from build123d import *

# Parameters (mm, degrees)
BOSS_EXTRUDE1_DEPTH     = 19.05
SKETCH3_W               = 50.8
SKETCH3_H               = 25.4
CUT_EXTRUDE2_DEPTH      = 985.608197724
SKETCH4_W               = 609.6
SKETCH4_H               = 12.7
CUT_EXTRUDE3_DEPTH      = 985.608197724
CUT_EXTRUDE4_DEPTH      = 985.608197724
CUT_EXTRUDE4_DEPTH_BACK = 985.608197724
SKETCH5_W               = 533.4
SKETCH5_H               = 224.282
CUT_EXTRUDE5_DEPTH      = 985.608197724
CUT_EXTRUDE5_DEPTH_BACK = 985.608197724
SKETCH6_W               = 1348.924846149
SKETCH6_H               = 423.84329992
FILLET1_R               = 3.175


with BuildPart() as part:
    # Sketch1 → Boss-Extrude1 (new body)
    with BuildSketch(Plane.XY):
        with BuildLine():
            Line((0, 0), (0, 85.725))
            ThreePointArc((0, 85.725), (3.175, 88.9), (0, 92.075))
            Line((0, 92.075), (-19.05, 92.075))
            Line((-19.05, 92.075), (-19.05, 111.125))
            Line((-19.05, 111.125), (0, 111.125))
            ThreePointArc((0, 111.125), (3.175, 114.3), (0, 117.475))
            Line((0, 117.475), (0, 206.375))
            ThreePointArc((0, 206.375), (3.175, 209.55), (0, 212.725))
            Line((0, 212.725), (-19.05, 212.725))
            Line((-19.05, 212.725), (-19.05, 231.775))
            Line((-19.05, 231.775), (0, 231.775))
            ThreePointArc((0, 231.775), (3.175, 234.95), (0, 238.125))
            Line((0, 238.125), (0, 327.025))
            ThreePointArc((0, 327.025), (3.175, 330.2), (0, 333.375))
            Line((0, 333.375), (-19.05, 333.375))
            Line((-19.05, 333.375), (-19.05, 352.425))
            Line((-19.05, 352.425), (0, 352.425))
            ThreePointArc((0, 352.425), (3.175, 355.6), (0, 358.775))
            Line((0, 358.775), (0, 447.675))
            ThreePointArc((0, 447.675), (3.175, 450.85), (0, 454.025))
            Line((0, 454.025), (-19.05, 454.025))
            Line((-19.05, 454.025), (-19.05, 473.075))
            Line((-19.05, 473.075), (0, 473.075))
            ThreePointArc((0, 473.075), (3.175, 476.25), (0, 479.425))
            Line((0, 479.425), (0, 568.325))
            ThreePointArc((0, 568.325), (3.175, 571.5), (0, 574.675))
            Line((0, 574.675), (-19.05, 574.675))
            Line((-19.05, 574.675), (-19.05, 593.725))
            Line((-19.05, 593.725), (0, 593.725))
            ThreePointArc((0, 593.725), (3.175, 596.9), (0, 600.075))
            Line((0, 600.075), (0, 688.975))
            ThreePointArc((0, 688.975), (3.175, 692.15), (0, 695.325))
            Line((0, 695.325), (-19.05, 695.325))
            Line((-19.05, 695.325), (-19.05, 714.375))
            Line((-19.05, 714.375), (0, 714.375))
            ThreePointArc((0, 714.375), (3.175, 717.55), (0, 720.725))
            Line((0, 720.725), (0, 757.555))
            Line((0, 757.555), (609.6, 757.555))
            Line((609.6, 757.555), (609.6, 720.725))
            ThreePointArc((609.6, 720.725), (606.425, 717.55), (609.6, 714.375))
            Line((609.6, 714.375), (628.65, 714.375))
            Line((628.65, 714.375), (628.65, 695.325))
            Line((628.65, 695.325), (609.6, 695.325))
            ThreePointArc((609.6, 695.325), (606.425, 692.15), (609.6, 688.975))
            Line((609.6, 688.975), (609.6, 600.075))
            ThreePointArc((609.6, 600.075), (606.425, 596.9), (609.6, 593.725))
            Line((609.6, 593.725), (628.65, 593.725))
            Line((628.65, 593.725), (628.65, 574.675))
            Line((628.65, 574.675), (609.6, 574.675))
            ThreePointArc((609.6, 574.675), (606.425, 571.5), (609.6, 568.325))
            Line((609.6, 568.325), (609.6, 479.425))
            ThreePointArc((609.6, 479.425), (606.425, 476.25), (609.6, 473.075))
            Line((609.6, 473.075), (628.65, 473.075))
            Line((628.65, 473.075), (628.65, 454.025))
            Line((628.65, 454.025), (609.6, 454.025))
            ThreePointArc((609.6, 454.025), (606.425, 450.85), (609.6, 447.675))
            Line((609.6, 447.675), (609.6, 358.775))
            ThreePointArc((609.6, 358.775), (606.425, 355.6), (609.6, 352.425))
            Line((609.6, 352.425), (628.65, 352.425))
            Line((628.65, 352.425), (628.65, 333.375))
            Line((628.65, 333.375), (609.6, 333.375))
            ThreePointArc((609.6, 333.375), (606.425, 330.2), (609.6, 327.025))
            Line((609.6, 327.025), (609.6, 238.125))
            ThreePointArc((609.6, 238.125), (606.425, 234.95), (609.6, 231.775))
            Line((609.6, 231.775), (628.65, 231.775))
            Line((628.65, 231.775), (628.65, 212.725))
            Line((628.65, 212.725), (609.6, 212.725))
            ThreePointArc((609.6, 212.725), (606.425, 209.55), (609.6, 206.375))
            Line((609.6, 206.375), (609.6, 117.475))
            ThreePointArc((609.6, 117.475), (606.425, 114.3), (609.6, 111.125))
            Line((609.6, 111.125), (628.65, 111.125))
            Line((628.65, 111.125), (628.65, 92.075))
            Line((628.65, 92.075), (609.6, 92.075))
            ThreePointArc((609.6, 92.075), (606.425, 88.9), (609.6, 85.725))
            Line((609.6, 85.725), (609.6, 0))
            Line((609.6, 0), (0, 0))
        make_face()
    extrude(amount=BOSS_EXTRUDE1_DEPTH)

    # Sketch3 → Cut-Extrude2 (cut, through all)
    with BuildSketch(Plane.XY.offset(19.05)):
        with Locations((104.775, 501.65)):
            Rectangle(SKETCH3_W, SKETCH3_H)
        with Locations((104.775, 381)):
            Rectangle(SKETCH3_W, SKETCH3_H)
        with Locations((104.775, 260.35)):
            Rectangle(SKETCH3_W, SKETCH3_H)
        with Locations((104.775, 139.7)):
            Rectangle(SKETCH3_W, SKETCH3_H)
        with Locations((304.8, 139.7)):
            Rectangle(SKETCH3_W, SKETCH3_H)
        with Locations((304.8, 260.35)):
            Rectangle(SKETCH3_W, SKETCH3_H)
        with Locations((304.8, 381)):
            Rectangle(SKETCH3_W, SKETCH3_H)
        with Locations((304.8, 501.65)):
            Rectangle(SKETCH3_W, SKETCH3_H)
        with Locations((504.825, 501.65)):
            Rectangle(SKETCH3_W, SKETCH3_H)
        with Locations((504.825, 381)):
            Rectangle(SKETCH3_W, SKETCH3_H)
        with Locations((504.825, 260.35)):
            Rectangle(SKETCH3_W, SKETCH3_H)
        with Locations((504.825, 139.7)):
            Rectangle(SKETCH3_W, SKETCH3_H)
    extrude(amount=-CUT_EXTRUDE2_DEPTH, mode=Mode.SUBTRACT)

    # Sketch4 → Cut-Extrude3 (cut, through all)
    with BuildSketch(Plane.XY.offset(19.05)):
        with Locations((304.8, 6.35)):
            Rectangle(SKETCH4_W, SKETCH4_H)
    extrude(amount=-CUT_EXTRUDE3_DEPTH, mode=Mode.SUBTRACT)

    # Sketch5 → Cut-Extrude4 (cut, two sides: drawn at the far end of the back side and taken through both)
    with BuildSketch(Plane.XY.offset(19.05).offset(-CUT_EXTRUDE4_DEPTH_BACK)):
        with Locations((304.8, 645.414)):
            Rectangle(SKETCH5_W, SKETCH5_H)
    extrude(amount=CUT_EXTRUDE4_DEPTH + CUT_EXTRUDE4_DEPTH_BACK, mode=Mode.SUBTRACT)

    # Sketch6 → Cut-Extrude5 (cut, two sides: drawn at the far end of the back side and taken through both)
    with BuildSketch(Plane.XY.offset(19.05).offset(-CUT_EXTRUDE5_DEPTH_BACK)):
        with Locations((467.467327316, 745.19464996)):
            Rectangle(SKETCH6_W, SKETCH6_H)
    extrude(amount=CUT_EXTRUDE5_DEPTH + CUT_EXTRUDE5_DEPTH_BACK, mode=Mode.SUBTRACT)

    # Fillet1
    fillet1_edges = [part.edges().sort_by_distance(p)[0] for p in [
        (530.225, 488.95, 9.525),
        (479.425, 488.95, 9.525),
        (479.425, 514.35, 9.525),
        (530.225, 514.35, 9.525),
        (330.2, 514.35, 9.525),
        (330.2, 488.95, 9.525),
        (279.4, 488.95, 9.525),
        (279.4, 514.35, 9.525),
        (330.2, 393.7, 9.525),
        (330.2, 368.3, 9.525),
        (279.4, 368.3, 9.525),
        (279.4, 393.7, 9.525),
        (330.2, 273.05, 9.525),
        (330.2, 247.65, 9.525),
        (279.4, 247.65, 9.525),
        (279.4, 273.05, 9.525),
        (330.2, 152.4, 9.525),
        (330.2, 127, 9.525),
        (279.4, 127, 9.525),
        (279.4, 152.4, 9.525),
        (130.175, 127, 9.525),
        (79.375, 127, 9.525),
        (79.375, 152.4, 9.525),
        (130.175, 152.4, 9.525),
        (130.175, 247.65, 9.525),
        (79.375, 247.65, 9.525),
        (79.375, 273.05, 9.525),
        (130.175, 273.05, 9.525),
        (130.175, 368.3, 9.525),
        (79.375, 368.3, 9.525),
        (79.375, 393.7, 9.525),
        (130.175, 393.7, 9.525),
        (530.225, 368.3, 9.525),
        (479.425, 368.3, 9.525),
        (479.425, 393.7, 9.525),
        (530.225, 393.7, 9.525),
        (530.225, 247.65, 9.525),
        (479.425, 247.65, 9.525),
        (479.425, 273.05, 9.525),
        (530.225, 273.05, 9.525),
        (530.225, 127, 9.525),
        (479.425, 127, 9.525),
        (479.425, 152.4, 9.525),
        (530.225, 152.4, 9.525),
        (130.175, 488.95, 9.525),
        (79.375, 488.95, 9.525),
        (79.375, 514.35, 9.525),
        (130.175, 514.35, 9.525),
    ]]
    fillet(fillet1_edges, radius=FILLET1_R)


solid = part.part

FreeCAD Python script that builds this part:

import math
import FreeCAD as App
import Part
import Sketcher

V = App.Vector
Q = App.Units.Quantity


def edges_at(feature, points):
    """Names of the edges that pass closest to the given points."""
    edges = feature.Shape.Edges
    near = lambda p: min(range(len(edges)), key=lambda i: edges[i].distToShape(Part.Vertex(*p))[0])
    return sorted({f"Edge{near(p) + 1}" for p in points})

doc = App.newDocument("Part")
params = doc.addObject("Spreadsheet::Sheet", "Params")
for row, (alias, value) in enumerate([
    ("sketch1_width", "24 in"),
    ("sketch1_height", "3.5 in"),
    ("sketch1_radius", "0.125 in"),
    ("sketch1_height2", "1.45 in"),
    ("pad1_length", "0.75 in"),
    ("sketch2_width", "2 in"),
    ("sketch2_height", "1 in"),
    ("sketch3_width", "24 in"),
    ("sketch3_height", "0.5 in"),
    ("sketch4_width", "21 in"),
    ("sketch4_height", "8.83 in"),
    ("fillet_radius", "0.125 in"),
], start=1):
    params.set(f"A{row}", alias)
    params.set(f"B{row}", "=" + value)
    params.setAlias(f"B{row}", alias)

body = doc.addObject("PartDesign::Body", "Body")

sketch1 = body.newObject("Sketcher::SketchObject", "Sketch")
sketch1.AttachmentSupport = (doc.getObject("XY_Plane"), [""])
sketch1.MapMode = "FlatFace"
sketch1.addGeometry(Part.LineSegment(V(0, 85.7, 0), V(0, 0, 0)), False)
sketch1.addGeometry(Part.LineSegment(V(0, 0, 0), V(609.6, 0, 0)), False)
sketch1.addGeometry(Part.LineSegment(V(609.6, 0, 0), V(609.6, 85.7, 0)), False)
sketch1.addGeometry(Part.ArcOfCircle(Part.Circle(V(609.6, 88.9, 0), V(0, 0, 1), 3.2), math.radians(90), math.radians(270)), False)
sketch1.addGeometry(Part.LineSegment(V(609.6, 92.1, 0), V(628.6, 92.1, 0)), False)
sketch1.addGeometry(Part.LineSegment(V(628.6, 92.1, 0), V(628.6, 111.1, 0)), False)
sketch1.addGeometry(Part.LineSegment(V(628.6, 111.1, 0), V(609.6, 111.1, 0)), False)
sketch1.addGeometry(Part.ArcOfCircle(Part.Circle(V(609.6, 114.3, 0), V(0, 0, 1), 3.2), math.radians(90), math.radians(270)), False)
sketch1.addGeometry(Part.LineSegment(V(609.6, 117.5, 0), V(609.6, 206.4, 0)), False)
sketch1.addGeometry(Part.ArcOfCircle(Part.Circle(V(609.6, 209.6, 0), V(0, 0, 1), 3.2), math.radians(90), math.radians(270)), False)
sketch1.addGeometry(Part.LineSegment(V(609.6, 212.7, 0), V(628.6, 212.7, 0)), False)
sketch1.addGeometry(Part.LineSegment(V(628.6, 212.7, 0), V(628.6, 231.8, 0)), False)
sketch1.addGeometry(Part.LineSegment(V(628.6, 231.8, 0), V(609.6, 231.8, 0)), False)
sketch1.addGeometry(Part.ArcOfCircle(Part.Circle(V(609.6, 234.9, 0), V(0, 0, 1), 3.2), math.radians(90), math.radians(270)), False)
sketch1.addGeometry(Part.LineSegment(V(609.6, 238.1, 0), V(609.6, 327, 0)), False)
sketch1.addGeometry(Part.ArcOfCircle(Part.Circle(V(609.6, 330.2, 0), V(0, 0, 1), 3.2), math.radians(90), math.radians(270)), False)
sketch1.addGeometry(Part.LineSegment(V(609.6, 333.4, 0), V(628.6, 333.4, 0)), False)
sketch1.addGeometry(Part.LineSegment(V(628.6, 333.4, 0), V(628.6, 352.4, 0)), False)
sketch1.addGeometry(Part.LineSegment(V(628.6, 352.4, 0), V(609.6, 352.4, 0)), False)
sketch1.addGeometry(Part.ArcOfCircle(Part.Circle(V(609.6, 355.6, 0), V(0, 0, 1), 3.2), math.radians(90), math.radians(270)), False)
sketch1.addGeometry(Part.LineSegment(V(609.6, 358.8, 0), V(609.6, 447.7, 0)), False)
sketch1.addGeometry(Part.ArcOfCircle(Part.Circle(V(609.6, 450.9, 0), V(0, 0, 1), 3.2), math.radians(90), math.radians(270)), False)
sketch1.addGeometry(Part.LineSegment(V(609.6, 454, 0), V(628.6, 454, 0)), False)
sketch1.addGeometry(Part.LineSegment(V(628.6, 454, 0), V(628.6, 473.1, 0)), False)
sketch1.addGeometry(Part.LineSegment(V(628.6, 473.1, 0), V(609.6, 473.1, 0)), False)
sketch1.addGeometry(Part.ArcOfCircle(Part.Circle(V(609.6, 476.2, 0), V(0, 0, 1), 3.2), math.radians(90), math.radians(270)), False)
sketch1.addGeometry(Part.LineSegment(V(609.6, 479.4, 0), V(609.6, 568.3, 0)), False)
sketch1.addGeometry(Part.ArcOfCircle(Part.Circle(V(609.6, 571.5, 0), V(0, 0, 1), 3.2), math.radians(90), math.radians(270)), False)
sketch1.addGeometry(Part.LineSegment(V(609.6, 574.7, 0), V(628.6, 574.7, 0)), False)
sketch1.addGeometry(Part.LineSegment(V(628.6, 574.7, 0), V(628.6, 593.7, 0)), False)
sketch1.addGeometry(Part.LineSegment(V(628.6, 593.7, 0), V(609.6, 593.7, 0)), False)
sketch1.addGeometry(Part.ArcOfCircle(Part.Circle(V(609.6, 596.9, 0), V(0, 0, 1), 3.2), math.radians(90), math.radians(270)), False)
sketch1.addGeometry(Part.LineSegment(V(609.6, 600.1, 0), V(609.6, 689, 0)), False)
sketch1.addGeometry(Part.ArcOfCircle(Part.Circle(V(609.6, 692.1, 0), V(0, 0, 1), 3.2), math.radians(90), math.radians(270)), False)
sketch1.addGeometry(Part.LineSegment(V(609.6, 695.3, 0), V(628.6, 695.3, 0)), False)
sketch1.addGeometry(Part.LineSegment(V(628.6, 695.3, 0), V(628.6, 714.4, 0)), False)
sketch1.addGeometry(Part.LineSegment(V(628.6, 714.4, 0), V(609.6, 714.4, 0)), False)
sketch1.addGeometry(Part.ArcOfCircle(Part.Circle(V(609.6, 717.5, 0), V(0, 0, 1), 3.2), math.radians(90), math.radians(270)), False)
sketch1.addGeometry(Part.LineSegment(V(609.6, 720.7, 0), V(609.6, 757.6, 0)), False)
sketch1.addGeometry(Part.LineSegment(V(609.6, 757.6, 0), V(0, 757.6, 0)), False)
sketch1.addGeometry(Part.LineSegment(V(0, 757.6, 0), V(0, 720.7, 0)), False)
sketch1.addGeometry(Part.ArcOfCircle(Part.Circle(V(0, 717.5, 0), V(0, 0, 1), 3.2), math.radians(-90), math.radians(90)), False)
sketch1.addGeometry(Part.LineSegment(V(0, 714.4, 0), V(-19.1, 714.4, 0)), False)
sketch1.addGeometry(Part.LineSegment(V(-19.1, 714.4, 0), V(-19.1, 695.3, 0)), False)
sketch1.addGeometry(Part.LineSegment(V(-19.1, 695.3, 0), V(0, 695.3, 0)), False)
sketch1.addGeometry(Part.ArcOfCircle(Part.Circle(V(0, 692.1, 0), V(0, 0, 1), 3.2), math.radians(-90), math.radians(90)), False)
sketch1.addGeometry(Part.LineSegment(V(0, 689, 0), V(0, 600.1, 0)), False)
sketch1.addGeometry(Part.ArcOfCircle(Part.Circle(V(0, 596.9, 0), V(0, 0, 1), 3.2), math.radians(-90), math.radians(90)), False)
sketch1.addGeometry(Part.LineSegment(V(0, 593.7, 0), V(-19.1, 593.7, 0)), False)
sketch1.addGeometry(Part.LineSegment(V(-19.1, 593.7, 0), V(-19.1, 574.7, 0)), False)
sketch1.addGeometry(Part.LineSegment(V(-19.1, 574.7, 0), V(0, 574.7, 0)), False)
sketch1.addGeometry(Part.ArcOfCircle(Part.Circle(V(0, 571.5, 0), V(0, 0, 1), 3.2), math.radians(-90), math.radians(90)), False)
sketch1.addGeometry(Part.LineSegment(V(0, 568.3, 0), V(0, 479.4, 0)), False)
sketch1.addGeometry(Part.ArcOfCircle(Part.Circle(V(0, 476.2, 0), V(0, 0, 1), 3.2), math.radians(-90), math.radians(90)), False)
sketch1.addGeometry(Part.LineSegment(V(0, 473.1, 0), V(-19.1, 473.1, 0)), False)
sketch1.addGeometry(Part.LineSegment(V(-19.1, 473.1, 0), V(-19.1, 454, 0)), False)
sketch1.addGeometry(Part.LineSegment(V(-19.1, 454, 0), V(0, 454, 0)), False)
sketch1.addGeometry(Part.ArcOfCircle(Part.Circle(V(0, 450.9, 0), V(0, 0, 1), 3.2), math.radians(-90), math.radians(90)), False)
sketch1.addGeometry(Part.LineSegment(V(0, 447.7, 0), V(0, 358.8, 0)), False)
sketch1.addGeometry(Part.ArcOfCircle(Part.Circle(V(0, 355.6, 0), V(0, 0, 1), 3.2), math.radians(-90), math.radians(90)), False)
sketch1.addGeometry(Part.LineSegment(V(0, 352.4, 0), V(-19.1, 352.4, 0)), False)
sketch1.addGeometry(Part.LineSegment(V(-19.1, 352.4, 0), V(-19.1, 333.4, 0)), False)
sketch1.addGeometry(Part.LineSegment(V(-19.1, 333.4, 0), V(0, 333.4, 0)), False)
sketch1.addGeometry(Part.ArcOfCircle(Part.Circle(V(0, 330.2, 0), V(0, 0, 1), 3.2), math.radians(-90), math.radians(90)), False)
sketch1.addGeometry(Part.LineSegment(V(0, 327, 0), V(0, 238.1, 0)), False)
sketch1.addGeometry(Part.ArcOfCircle(Part.Circle(V(0, 234.9, 0), V(0, 0, 1), 3.2), math.radians(-90), math.radians(90)), False)
sketch1.addGeometry(Part.LineSegment(V(0, 231.8, 0), V(-19.1, 231.8, 0)), False)
sketch1.addGeometry(Part.LineSegment(V(-19.1, 231.8, 0), V(-19.1, 212.7, 0)), False)
sketch1.addGeometry(Part.LineSegment(V(-19.1, 212.7, 0), V(0, 212.7, 0)), False)
sketch1.addGeometry(Part.ArcOfCircle(Part.Circle(V(0, 209.6, 0), V(0, 0, 1), 3.2), math.radians(-90), math.radians(90)), False)
sketch1.addGeometry(Part.LineSegment(V(0, 206.4, 0), V(0, 117.5, 0)), False)
sketch1.addGeometry(Part.ArcOfCircle(Part.Circle(V(0, 114.3, 0), V(0, 0, 1), 3.2), math.radians(-90), math.radians(90)), False)
sketch1.addGeometry(Part.LineSegment(V(0, 111.1, 0), V(-19.1, 111.1, 0)), False)
sketch1.addGeometry(Part.LineSegment(V(-19.1, 111.1, 0), V(-19.1, 92.1, 0)), False)
sketch1.addGeometry(Part.LineSegment(V(-19.1, 92.1, 0), V(0, 92.1, 0)), False)
sketch1.addGeometry(Part.ArcOfCircle(Part.Circle(V(0, 88.9, 0), V(0, 0, 1), 3.2), math.radians(-90), math.radians(90)), False)
sketch1.addConstraint(Sketcher.Constraint("Coincident", 0, 2, 1, 1))
sketch1.addConstraint(Sketcher.Constraint("Coincident", 1, 2, 2, 1))
sketch1.addConstraint(Sketcher.Constraint("Coincident", 2, 2, 3, 2))
sketch1.addConstraint(Sketcher.Constraint("Tangent", 3, 1, 4, 1))
sketch1.addConstraint(Sketcher.Constraint("Coincident", 4, 2, 5, 1))
sketch1.addConstraint(Sketcher.Constraint("Coincident", 5, 2, 6, 1))
sketch1.addConstraint(Sketcher.Constraint("Tangent", 6, 2, 7, 2))
sketch1.addConstraint(Sketcher.Constraint("Coincident", 7, 1, 8, 1))
sketch1.addConstraint(Sketcher.Constraint("Coincident", 8, 2, 9, 2))
sketch1.addConstraint(Sketcher.Constraint("Tangent", 9, 1, 10, 1))
sketch1.addConstraint(Sketcher.Constraint("Coincident", 10, 2, 11, 1))
sketch1.addConstraint(Sketcher.Constraint("Coincident", 11, 2, 12, 1))
sketch1.addConstraint(Sketcher.Constraint("Tangent", 12, 2, 13, 2))
sketch1.addConstraint(Sketcher.Constraint("Coincident", 13, 1, 14, 1))
sketch1.addConstraint(Sketcher.Constraint("Coincident", 14, 2, 15, 2))
sketch1.addConstraint(Sketcher.Constraint("Tangent", 15, 1, 16, 1))
sketch1.addConstraint(Sketcher.Constraint("Coincident", 16, 2, 17, 1))
sketch1.addConstraint(Sketcher.Constraint("Coincident", 17, 2, 18, 1))
sketch1.addConstraint(Sketcher.Constraint("Tangent", 18, 2, 19, 2))
sketch1.addConstraint(Sketcher.Constraint("Coincident", 19, 1, 20, 1))
sketch1.addConstraint(Sketcher.Constraint("Coincident", 20, 2, 21, 2))
sketch1.addConstraint(Sketcher.Constraint("Tangent", 21, 1, 22, 1))
sketch1.addConstraint(Sketcher.Constraint("Coincident", 22, 2, 23, 1))
sketch1.addConstraint(Sketcher.Constraint("Coincident", 23, 2, 24, 1))
sketch1.addConstraint(Sketcher.Constraint("Tangent", 24, 2, 25, 2))
sketch1.addConstraint(Sketcher.Constraint("Coincident", 25, 1, 26, 1))
sketch1.addConstraint(Sketcher.Constraint("Coincident", 26, 2, 27, 2))
sketch1.addConstraint(Sketcher.Constraint("Tangent", 27, 1, 28, 1))
sketch1.addConstraint(Sketcher.Constraint("Coincident", 28, 2, 29, 1))
sketch1.addConstraint(Sketcher.Constraint("Coincident", 29, 2, 30, 1))
sketch1.addConstraint(Sketcher.Constraint("Tangent", 30, 2, 31, 2))
sketch1.addConstraint(Sketcher.Constraint("Coincident", 31, 1, 32, 1))
sketch1.addConstraint(Sketcher.Constraint("Coincident", 32, 2, 33, 2))
sketch1.addConstraint(Sketcher.Constraint("Tangent", 33, 1, 34, 1))
sketch1.addConstraint(Sketcher.Constraint("Coincident", 34, 2, 35, 1))
sketch1.addConstraint(Sketcher.Constraint("Coincident", 35, 2, 36, 1))
sketch1.addConstraint(Sketcher.Constraint("Tangent", 36, 2, 37, 2))
sketch1.addConstraint(Sketcher.Constraint("Coincident", 37, 1, 38, 1))
sketch1.addConstraint(Sketcher.Constraint("Coincident", 38, 2, 39, 1))
sketch1.addConstraint(Sketcher.Constraint("Coincident", 39, 2, 40, 1))
sketch1.addConstraint(Sketcher.Constraint("Coincident", 40, 2, 41, 2))
sketch1.addConstraint(Sketcher.Constraint("Tangent", 41, 1, 42, 1))
sketch1.addConstraint(Sketcher.Constraint("Coincident", 42, 2, 43, 1))
sketch1.addConstraint(Sketcher.Constraint("Coincident", 43, 2, 44, 1))
sketch1.addConstraint(Sketcher.Constraint("Tangent", 44, 2, 45, 2))
sketch1.addConstraint(Sketcher.Constraint("Coincident", 45, 1, 46, 1))
sketch1.addConstraint(Sketcher.Constraint("Coincident", 46, 2, 47, 2))
sketch1.addConstraint(Sketcher.Constraint("Tangent", 47, 1, 48, 1))
sketch1.addConstraint(Sketcher.Constraint("Coincident", 48, 2, 49, 1))
sketch1.addConstraint(Sketcher.Constraint("Coincident", 49, 2, 50, 1))
sketch1.addConstraint(Sketcher.Constraint("Tangent", 50, 2, 51, 2))
sketch1.addConstraint(Sketcher.Constraint("Coincident", 51, 1, 52, 1))
sketch1.addConstraint(Sketcher.Constraint("Coincident", 52, 2, 53, 2))
sketch1.addConstraint(Sketcher.Constraint("Tangent", 53, 1, 54, 1))
sketch1.addConstraint(Sketcher.Constraint("Coincident", 54, 2, 55, 1))
sketch1.addConstraint(Sketcher.Constraint("Coincident", 55, 2, 56, 1))
sketch1.addConstraint(Sketcher.Constraint("Tangent", 56, 2, 57, 2))
sketch1.addConstraint(Sketcher.Constraint("Coincident", 57, 1, 58, 1))
sketch1.addConstraint(Sketcher.Constraint("Coincident", 58, 2, 59, 2))
sketch1.addConstraint(Sketcher.Constraint("Tangent", 59, 1, 60, 1))
sketch1.addConstraint(Sketcher.Constraint("Coincident", 60, 2, 61, 1))
sketch1.addConstraint(Sketcher.Constraint("Coincident", 61, 2, 62, 1))
sketch1.addConstraint(Sketcher.Constraint("Tangent", 62, 2, 63, 2))
sketch1.addConstraint(Sketcher.Constraint("Coincident", 63, 1, 64, 1))
sketch1.addConstraint(Sketcher.Constraint("Coincident", 64, 2, 65, 2))
sketch1.addConstraint(Sketcher.Constraint("Tangent", 65, 1, 66, 1))
sketch1.addConstraint(Sketcher.Constraint("Coincident", 66, 2, 67, 1))
sketch1.addConstraint(Sketcher.Constraint("Coincident", 67, 2, 68, 1))
sketch1.addConstraint(Sketcher.Constraint("Tangent", 68, 2, 69, 2))
sketch1.addConstraint(Sketcher.Constraint("Coincident", 69, 1, 70, 1))
sketch1.addConstraint(Sketcher.Constraint("Coincident", 70, 2, 71, 2))
sketch1.addConstraint(Sketcher.Constraint("Tangent", 71, 1, 72, 1))
sketch1.addConstraint(Sketcher.Constraint("Coincident", 72, 2, 73, 1))
sketch1.addConstraint(Sketcher.Constraint("Coincident", 73, 2, 74, 1))
sketch1.addConstraint(Sketcher.Constraint("Tangent", 74, 2, 75, 2))
sketch1.addConstraint(Sketcher.Constraint("Coincident", 75, 1, 0, 1))
sketch1.addConstraint(Sketcher.Constraint("Vertical", 0))
sketch1.addConstraint(Sketcher.Constraint("Horizontal", 1))
sketch1.addConstraint(Sketcher.Constraint("Vertical", 2))
sketch1.addConstraint(Sketcher.Constraint("Horizontal", 4))
sketch1.addConstraint(Sketcher.Constraint("Vertical", 5))
sketch1.addConstraint(Sketcher.Constraint("Horizontal", 6))
sketch1.addConstraint(Sketcher.Constraint("Vertical", 8))
sketch1.addConstraint(Sketcher.Constraint("Horizontal", 10))
sketch1.addConstraint(Sketcher.Constraint("Vertical", 11))
sketch1.addConstraint(Sketcher.Constraint("Horizontal", 12))
sketch1.addConstraint(Sketcher.Constraint("Vertical", 14))
sketch1.addConstraint(Sketcher.Constraint("Horizontal", 16))
sketch1.addConstraint(Sketcher.Constraint("Vertical", 17))
sketch1.addConstraint(Sketcher.Constraint("Horizontal", 18))
sketch1.addConstraint(Sketcher.Constraint("Vertical", 20))
sketch1.addConstraint(Sketcher.Constraint("Horizontal", 22))
sketch1.addConstraint(Sketcher.Constraint("Vertical", 23))
sketch1.addConstraint(Sketcher.Constraint("Horizontal", 24))
sketch1.addConstraint(Sketcher.Constraint("Vertical", 26))
sketch1.addConstraint(Sketcher.Constraint("Horizontal", 28))
sketch1.addConstraint(Sketcher.Constraint("Vertical", 29))
sketch1.addConstraint(Sketcher.Constraint("Horizontal", 30))
sketch1.addConstraint(Sketcher.Constraint("Vertical", 32))
sketch1.addConstraint(Sketcher.Constraint("Horizontal", 34))
sketch1.addConstraint(Sketcher.Constraint("Vertical", 35))
sketch1.addConstraint(Sketcher.Constraint("Horizontal", 36))
sketch1.addConstraint(Sketcher.Constraint("Vertical", 38))
sketch1.addConstraint(Sketcher.Constraint("Horizontal", 39))
sketch1.addConstraint(Sketcher.Constraint("Vertical", 40))
sketch1.addConstraint(Sketcher.Constraint("Horizontal", 42))
sketch1.addConstraint(Sketcher.Constraint("Vertical", 43))
sketch1.addConstraint(Sketcher.Constraint("Horizontal", 44))
sketch1.addConstraint(Sketcher.Constraint("Vertical", 46))
sketch1.addConstraint(Sketcher.Constraint("Horizontal", 48))
sketch1.addConstraint(Sketcher.Constraint("Vertical", 49))
sketch1.addConstraint(Sketcher.Constraint("Horizontal", 50))
sketch1.addConstraint(Sketcher.Constraint("Vertical", 52))
sketch1.addConstraint(Sketcher.Constraint("Horizontal", 54))
sketch1.addConstraint(Sketcher.Constraint("Vertical", 55))
sketch1.addConstraint(Sketcher.Constraint("Horizontal", 56))
sketch1.addConstraint(Sketcher.Constraint("Vertical", 58))
sketch1.addConstraint(Sketcher.Constraint("Horizontal", 60))
sketch1.addConstraint(Sketcher.Constraint("Vertical", 61))
sketch1.addConstraint(Sketcher.Constraint("Horizontal", 62))
sketch1.addConstraint(Sketcher.Constraint("Vertical", 64))
sketch1.addConstraint(Sketcher.Constraint("Horizontal", 66))
sketch1.addConstraint(Sketcher.Constraint("Vertical", 67))
sketch1.addConstraint(Sketcher.Constraint("Horizontal", 68))
sketch1.addConstraint(Sketcher.Constraint("Vertical", 70))
sketch1.addConstraint(Sketcher.Constraint("Horizontal", 72))
sketch1.addConstraint(Sketcher.Constraint("Vertical", 73))
sketch1.addConstraint(Sketcher.Constraint("Horizontal", 74))
sketch1.addConstraint(Sketcher.Constraint("Coincident", 0, 2, -1, 1))
sketch1.addConstraint(Sketcher.Constraint("Equal", 3, 7))
sketch1.addConstraint(Sketcher.Constraint("Equal", 7, 9))
sketch1.addConstraint(Sketcher.Constraint("Equal", 9, 13))
sketch1.addConstraint(Sketcher.Constraint("Equal", 13, 15))
sketch1.addConstraint(Sketcher.Constraint("Equal", 15, 19))
sketch1.addConstraint(Sketcher.Constraint("Equal", 19, 21))
sketch1.addConstraint(Sketcher.Constraint("Equal", 21, 25))
sketch1.addConstraint(Sketcher.Constraint("Equal", 25, 27))
sketch1.addConstraint(Sketcher.Constraint("Equal", 27, 31))
sketch1.addConstraint(Sketcher.Constraint("Equal", 31, 33))
sketch1.addConstraint(Sketcher.Constraint("Equal", 33, 37))
sketch1.addConstraint(Sketcher.Constraint("Equal", 37, 41))
sketch1.addConstraint(Sketcher.Constraint("Equal", 41, 45))
sketch1.addConstraint(Sketcher.Constraint("Equal", 45, 47))
sketch1.addConstraint(Sketcher.Constraint("Equal", 47, 51))
sketch1.addConstraint(Sketcher.Constraint("Equal", 51, 53))
sketch1.addConstraint(Sketcher.Constraint("Equal", 53, 57))
sketch1.addConstraint(Sketcher.Constraint("Equal", 57, 59))
sketch1.addConstraint(Sketcher.Constraint("Equal", 59, 63))
sketch1.addConstraint(Sketcher.Constraint("Equal", 63, 65))
sketch1.addConstraint(Sketcher.Constraint("Equal", 65, 69))
sketch1.addConstraint(Sketcher.Constraint("Equal", 69, 71))
sketch1.addConstraint(Sketcher.Constraint("Equal", 71, 75))
sketch1.addConstraint(Sketcher.Constraint("PointOnObject", 41, 3, -2))
sketch1.addConstraint(Sketcher.Constraint("PointOnObject", 45, 3, -2))
sketch1.addConstraint(Sketcher.Constraint("PointOnObject", 47, 3, -2))
sketch1.addConstraint(Sketcher.Constraint("PointOnObject", 51, 3, -2))
sketch1.addConstraint(Sketcher.Constraint("PointOnObject", 53, 3, -2))
sketch1.addConstraint(Sketcher.Constraint("PointOnObject", 57, 3, -2))
sketch1.addConstraint(Sketcher.Constraint("PointOnObject", 59, 3, -2))
sketch1.addConstraint(Sketcher.Constraint("PointOnObject", 63, 3, -2))
sketch1.addConstraint(Sketcher.Constraint("PointOnObject", 65, 3, -2))
sketch1.addConstraint(Sketcher.Constraint("PointOnObject", 69, 3, -2))
sketch1.addConstraint(Sketcher.Constraint("PointOnObject", 71, 3, -2))
sketch1.addConstraint(Sketcher.Constraint("PointOnObject", 75, 3, -2))
sketch1.addConstraint(Sketcher.Constraint("PointOnObject", 39, 2, -2))
sketch1.addConstraint(Sketcher.Constraint("PointOnObject", 45, 1, -2))
sketch1.addConstraint(Sketcher.Constraint("PointOnObject", 51, 1, -2))
sketch1.addConstraint(Sketcher.Constraint("PointOnObject", 57, 1, -2))
sketch1.addConstraint(Sketcher.Constraint("PointOnObject", 63, 1, -2))
sketch1.addConstraint(Sketcher.Constraint("PointOnObject", 69, 1, -2))
sketch1.addConstraint(Sketcher.Constraint("Horizontal", 37, 3, 41, 3))
sketch1.addConstraint(Sketcher.Constraint("Horizontal", 33, 3, 45, 3))
sketch1.addConstraint(Sketcher.Constraint("Horizontal", 31, 3, 47, 3))
sketch1.addConstraint(Sketcher.Constraint("Horizontal", 27, 3, 51, 3))
sketch1.addConstraint(Sketcher.Constraint("Horizontal", 25, 3, 53, 3))
sketch1.addConstraint(Sketcher.Constraint("Horizontal", 21, 3, 57, 3))
sketch1.addConstraint(Sketcher.Constraint("Horizontal", 19, 3, 59, 3))
sketch1.addConstraint(Sketcher.Constraint("Horizontal", 15, 3, 63, 3))
sketch1.addConstraint(Sketcher.Constraint("Horizontal", 13, 3, 65, 3))
sketch1.addConstraint(Sketcher.Constraint("Horizontal", 9, 3, 69, 3))
sketch1.addConstraint(Sketcher.Constraint("Horizontal", 7, 3, 71, 3))
sketch1.addConstraint(Sketcher.Constraint("Horizontal", 3, 3, 75, 3))
sketch1.addConstraint(Sketcher.Constraint("Vertical", 3, 3, 7, 3))
sketch1.addConstraint(Sketcher.Constraint("Vertical", 7, 3, 9, 3))
sketch1.addConstraint(Sketcher.Constraint("Vertical", 9, 3, 13, 3))
sketch1.addConstraint(Sketcher.Constraint("Vertical", 13, 3, 15, 3))
sketch1.addConstraint(Sketcher.Constraint("Vertical", 15, 3, 19, 3))
sketch1.addConstraint(Sketcher.Constraint("Vertical", 19, 3, 21, 3))
sketch1.addConstraint(Sketcher.Constraint("Vertical", 21, 3, 25, 3))
sketch1.addConstraint(Sketcher.Constraint("Vertical", 25, 3, 27, 3))
sketch1.addConstraint(Sketcher.Constraint("Vertical", 27, 3, 31, 3))
sketch1.addConstraint(Sketcher.Constraint("Vertical", 31, 3, 33, 3))
sketch1.addConstraint(Sketcher.Constraint("Vertical", 33, 3, 37, 3))
sketch1.addConstraint(Sketcher.Constraint("Vertical", 37, 3, 1, 2))
sketch1.addConstraint(Sketcher.Constraint("Vertical", 6, 2, 7, 1))
sketch1.addConstraint(Sketcher.Constraint("Vertical", 5, 2, 10, 2))
sketch1.addConstraint(Sketcher.Constraint("Vertical", 12, 2, 13, 1))
sketch1.addConstraint(Sketcher.Constraint("Vertical", 11, 2, 16, 2))
sketch1.addConstraint(Sketcher.Constraint("Vertical", 18, 2, 19, 1))
sketch1.addConstraint(Sketcher.Constraint("Vertical", 17, 2, 22, 2))
sketch1.addConstraint(Sketcher.Constraint("Vertical", 24, 2, 25, 1))
sketch1.addConstraint(Sketcher.Constraint("Vertical", 23, 2, 28, 2))
sketch1.addConstraint(Sketcher.Constraint("Vertical", 30, 2, 31, 1))
sketch1.addConstraint(Sketcher.Constraint("Vertical", 29, 2, 34, 2))
sketch1.addConstraint(Sketcher.Constraint("Vertical", 36, 2, 37, 1))
sketch1.addConstraint(Sketcher.Constraint("Vertical", 43, 2, 48, 2))
sketch1.addConstraint(Sketcher.Constraint("Vertical", 49, 2, 54, 2))
sketch1.addConstraint(Sketcher.Constraint("Vertical", 55, 2, 60, 2))
sketch1.addConstraint(Sketcher.Constraint("Vertical", 61, 2, 66, 2))
sketch1.addConstraint(Sketcher.Constraint("Vertical", 67, 2, 72, 2))
sketch1.addConstraint(Sketcher.Constraint("Equal", 36, 42))
sketch1.addConstraint(Sketcher.Constraint("Equal", 74, 5))
sketch1.addConstraint(Sketcher.Constraint("Equal", 5, 11))
sketch1.addConstraint(Sketcher.Constraint("Equal", 8, 14))
sketch1.addConstraint(Sketcher.Constraint("Equal", 11, 17))
sketch1.addConstraint(Sketcher.Constraint("Equal", 14, 20))
sketch1.addConstraint(Sketcher.Constraint("Equal", 17, 23))
sketch1.addConstraint(Sketcher.Constraint("Equal", 20, 26))
sketch1.addConstraint(Sketcher.Constraint("Equal", 23, 29))
sketch1.addConstraint(Sketcher.Constraint("Equal", 26, 32))
sketch1.addConstraint(Sketcher.Constraint("Equal", 29, 35))
sketch1.addConstraint(Sketcher.Constraint("DistanceX", 1, 1, 1, 2, Q("24 in")))
sketch1.addConstraint(Sketcher.Constraint("DistanceY", 8, 1, 8, 2, Q("3.5 in")))
sketch1.addConstraint(Sketcher.Constraint("DistanceY", -1, 1, 15, 3, Q("13 in")))
sketch1.addConstraint(Sketcher.Constraint("DistanceY", -1, 1, 19, 3, Q("14 in")))
sketch1.addConstraint(Sketcher.Constraint("Radius", 3, Q("0.125 in")))
sketch1.addConstraint(Sketcher.Constraint("DistanceY", 38, 1, 38, 2, Q("1.45 in")))
sketch1.setExpression("Constraints[221]", "Params.sketch1_width")
sketch1.setExpression("Constraints[222]", "Params.sketch1_height")
sketch1.setExpression("Constraints[225]", "Params.sketch1_radius")
sketch1.setExpression("Constraints[226]", "Params.sketch1_height2")
pad1 = body.newObject("PartDesign::Pad", "Pad")
pad1.Profile = sketch1
pad1.setExpression("Length", "Params.pad1_length")

sketch2 = body.newObject("Sketcher::SketchObject", "Sketch001")
sketch2.AttachmentSupport = (doc.getObject("XY_Plane"), [""])
sketch2.MapMode = "FlatFace"
sketch2.AttachmentOffset = App.Placement(V(0, 0, 0.75 * 25.4), App.Rotation())
sketch2.addGeometry(Part.LineSegment(V(79, 514, 0), V(79, 489, 0)), False)
sketch2.addGeometry(Part.LineSegment(V(79, 489, 0), V(130, 489, 0)), False)
sketch2.addGeometry(Part.LineSegment(V(130, 489, 0), V(130, 514, 0)), False)
sketch2.addGeometry(Part.LineSegment(V(130, 514, 0), V(79, 514, 0)), False)
sketch2.addGeometry(Part.LineSegment(V(79, 394, 0), V(79, 368, 0)), False)
sketch2.addGeometry(Part.LineSegment(V(79, 368, 0), V(130, 368, 0)), False)
sketch2.addGeometry(Part.LineSegment(V(130, 368, 0), V(130, 394, 0)), False)
sketch2.addGeometry(Part.LineSegment(V(130, 394, 0), V(79, 394, 0)), False)
sketch2.addGeometry(Part.LineSegment(V(79, 273, 0), V(79, 248, 0)), False)
sketch2.addGeometry(Part.LineSegment(V(79, 248, 0), V(130, 248, 0)), False)
sketch2.addGeometry(Part.LineSegment(V(130, 248, 0), V(130, 273, 0)), False)
sketch2.addGeometry(Part.LineSegment(V(130, 273, 0), V(79, 273, 0)), False)
sketch2.addGeometry(Part.LineSegment(V(79, 152, 0), V(79, 127, 0)), False)
sketch2.addGeometry(Part.LineSegment(V(79, 127, 0), V(130, 127, 0)), False)
sketch2.addGeometry(Part.LineSegment(V(130, 127, 0), V(130, 152, 0)), False)
sketch2.addGeometry(Part.LineSegment(V(130, 152, 0), V(79, 152, 0)), False)
sketch2.addGeometry(Part.LineSegment(V(279, 152, 0), V(279, 127, 0)), False)
sketch2.addGeometry(Part.LineSegment(V(279, 127, 0), V(330, 127, 0)), False)
sketch2.addGeometry(Part.LineSegment(V(330, 127, 0), V(330, 152, 0)), False)
sketch2.addGeometry(Part.LineSegment(V(330, 152, 0), V(279, 152, 0)), False)
sketch2.addGeometry(Part.LineSegment(V(279, 273, 0), V(279, 248, 0)), False)
sketch2.addGeometry(Part.LineSegment(V(279, 248, 0), V(330, 248, 0)), False)
sketch2.addGeometry(Part.LineSegment(V(330, 248, 0), V(330, 273, 0)), False)
sketch2.addGeometry(Part.LineSegment(V(330, 273, 0), V(279, 273, 0)), False)
sketch2.addGeometry(Part.LineSegment(V(279, 394, 0), V(279, 368, 0)), False)
sketch2.addGeometry(Part.LineSegment(V(279, 368, 0), V(330, 368, 0)), False)
sketch2.addGeometry(Part.LineSegment(V(330, 368, 0), V(330, 394, 0)), False)
sketch2.addGeometry(Part.LineSegment(V(330, 394, 0), V(279, 394, 0)), False)
sketch2.addGeometry(Part.LineSegment(V(279, 514, 0), V(279, 489, 0)), False)
sketch2.addGeometry(Part.LineSegment(V(279, 489, 0), V(330, 489, 0)), False)
sketch2.addGeometry(Part.LineSegment(V(330, 489, 0), V(330, 514, 0)), False)
sketch2.addGeometry(Part.LineSegment(V(330, 514, 0), V(279, 514, 0)), False)
sketch2.addGeometry(Part.LineSegment(V(479, 514, 0), V(479, 489, 0)), False)
sketch2.addGeometry(Part.LineSegment(V(479, 489, 0), V(530, 489, 0)), False)
sketch2.addGeometry(Part.LineSegment(V(530, 489, 0), V(530, 514, 0)), False)
sketch2.addGeometry(Part.LineSegment(V(530, 514, 0), V(479, 514, 0)), False)
sketch2.addGeometry(Part.LineSegment(V(479, 394, 0), V(479, 368, 0)), False)
sketch2.addGeometry(Part.LineSegment(V(479, 368, 0), V(530, 368, 0)), False)
sketch2.addGeometry(Part.LineSegment(V(530, 368, 0), V(530, 394, 0)), False)
sketch2.addGeometry(Part.LineSegment(V(530, 394, 0), V(479, 394, 0)), False)
sketch2.addGeometry(Part.LineSegment(V(479, 273, 0), V(479, 248, 0)), False)
sketch2.addGeometry(Part.LineSegment(V(479, 248, 0), V(530, 248, 0)), False)
sketch2.addGeometry(Part.LineSegment(V(530, 248, 0), V(530, 273, 0)), False)
sketch2.addGeometry(Part.LineSegment(V(530, 273, 0), V(479, 273, 0)), False)
sketch2.addGeometry(Part.LineSegment(V(479, 152, 0), V(479, 127, 0)), False)
sketch2.addGeometry(Part.LineSegment(V(479, 127, 0), V(530, 127, 0)), False)
sketch2.addGeometry(Part.LineSegment(V(530, 127, 0), V(530, 152, 0)), False)
sketch2.addGeometry(Part.LineSegment(V(530, 152, 0), V(479, 152, 0)), False)
sketch2.addConstraint(Sketcher.Constraint("Coincident", 0, 2, 1, 1))
sketch2.addConstraint(Sketcher.Constraint("Coincident", 1, 2, 2, 1))
sketch2.addConstraint(Sketcher.Constraint("Coincident", 2, 2, 3, 1))
sketch2.addConstraint(Sketcher.Constraint("Coincident", 3, 2, 0, 1))
sketch2.addConstraint(Sketcher.Constraint("Coincident", 4, 2, 5, 1))
sketch2.addConstraint(Sketcher.Constraint("Coincident", 5, 2, 6, 1))
sketch2.addConstraint(Sketcher.Constraint("Coincident", 6, 2, 7, 1))
sketch2.addConstraint(Sketcher.Constraint("Coincident", 7, 2, 4, 1))
sketch2.addConstraint(Sketcher.Constraint("Coincident", 8, 2, 9, 1))
sketch2.addConstraint(Sketcher.Constraint("Coincident", 9, 2, 10, 1))
sketch2.addConstraint(Sketcher.Constraint("Coincident", 10, 2, 11, 1))
sketch2.addConstraint(Sketcher.Constraint("Coincident", 11, 2, 8, 1))
sketch2.addConstraint(Sketcher.Constraint("Coincident", 12, 2, 13, 1))
sketch2.addConstraint(Sketcher.Constraint("Coincident", 13, 2, 14, 1))
sketch2.addConstraint(Sketcher.Constraint("Coincident", 14, 2, 15, 1))
sketch2.addConstraint(Sketcher.Constraint("Coincident", 15, 2, 12, 1))
sketch2.addConstraint(Sketcher.Constraint("Coincident", 16, 2, 17, 1))
sketch2.addConstraint(Sketcher.Constraint("Coincident", 17, 2, 18, 1))
sketch2.addConstraint(Sketcher.Constraint("Coincident", 18, 2, 19, 1))
sketch2.addConstraint(Sketcher.Constraint("Coincident", 19, 2, 16, 1))
sketch2.addConstraint(Sketcher.Constraint("Coincident", 20, 2, 21, 1))
sketch2.addConstraint(Sketcher.Constraint("Coincident", 21, 2, 22, 1))
sketch2.addConstraint(Sketcher.Constraint("Coincident", 22, 2, 23, 1))
sketch2.addConstraint(Sketcher.Constraint("Coincident", 23, 2, 20, 1))
sketch2.addConstraint(Sketcher.Constraint("Coincident", 24, 2, 25, 1))
sketch2.addConstraint(Sketcher.Constraint("Coincident", 25, 2, 26, 1))
sketch2.addConstraint(Sketcher.Constraint("Coincident", 26, 2, 27, 1))
sketch2.addConstraint(Sketcher.Constraint("Coincident", 27, 2, 24, 1))
sketch2.addConstraint(Sketcher.Constraint("Coincident", 28, 2, 29, 1))
sketch2.addConstraint(Sketcher.Constraint("Coincident", 29, 2, 30, 1))
sketch2.addConstraint(Sketcher.Constraint("Coincident", 30, 2, 31, 1))
sketch2.addConstraint(Sketcher.Constraint("Coincident", 31, 2, 28, 1))
sketch2.addConstraint(Sketcher.Constraint("Coincident", 32, 2, 33, 1))
sketch2.addConstraint(Sketcher.Constraint("Coincident", 33, 2, 34, 1))
sketch2.addConstraint(Sketcher.Constraint("Coincident", 34, 2, 35, 1))
sketch2.addConstraint(Sketcher.Constraint("Coincident", 35, 2, 32, 1))
sketch2.addConstraint(Sketcher.Constraint("Coincident", 36, 2, 37, 1))
sketch2.addConstraint(Sketcher.Constraint("Coincident", 37, 2, 38, 1))
sketch2.addConstraint(Sketcher.Constraint("Coincident", 38, 2, 39, 1))
sketch2.addConstraint(Sketcher.Constraint("Coincident", 39, 2, 36, 1))
sketch2.addConstraint(Sketcher.Constraint("Coincident", 40, 2, 41, 1))
sketch2.addConstraint(Sketcher.Constraint("Coincident", 41, 2, 42, 1))
sketch2.addConstraint(Sketcher.Constraint("Coincident", 42, 2, 43, 1))
sketch2.addConstraint(Sketcher.Constraint("Coincident", 43, 2, 40, 1))
sketch2.addConstraint(Sketcher.Constraint("Coincident", 44, 2, 45, 1))
sketch2.addConstraint(Sketcher.Constraint("Coincident", 45, 2, 46, 1))
sketch2.addConstraint(Sketcher.Constraint("Coincident", 46, 2, 47, 1))
sketch2.addConstraint(Sketcher.Constraint("Coincident", 47, 2, 44, 1))
sketch2.addConstraint(Sketcher.Constraint("Vertical", 0))
sketch2.addConstraint(Sketcher.Constraint("Horizontal", 1))
sketch2.addConstraint(Sketcher.Constraint("Vertical", 2))
sketch2.addConstraint(Sketcher.Constraint("Horizontal", 3))
sketch2.addConstraint(Sketcher.Constraint("Vertical", 4))
sketch2.addConstraint(Sketcher.Constraint("Horizontal", 5))
sketch2.addConstraint(Sketcher.Constraint("Vertical", 6))
sketch2.addConstraint(Sketcher.Constraint("Horizontal", 7))
sketch2.addConstraint(Sketcher.Constraint("Vertical", 8))
sketch2.addConstraint(Sketcher.Constraint("Horizontal", 9))
sketch2.addConstraint(Sketcher.Constraint("Vertical", 10))
sketch2.addConstraint(Sketcher.Constraint("Horizontal", 11))
sketch2.addConstraint(Sketcher.Constraint("Vertical", 12))
sketch2.addConstraint(Sketcher.Constraint("Horizontal", 13))
sketch2.addConstraint(Sketcher.Constraint("Vertical", 14))
sketch2.addConstraint(Sketcher.Constraint("Horizontal", 15))
sketch2.addConstraint(Sketcher.Constraint("Vertical", 16))
sketch2.addConstraint(Sketcher.Constraint("Horizontal", 17))
sketch2.addConstraint(Sketcher.Constraint("Vertical", 18))
sketch2.addConstraint(Sketcher.Constraint("Horizontal", 19))
sketch2.addConstraint(Sketcher.Constraint("Vertical", 20))
sketch2.addConstraint(Sketcher.Constraint("Horizontal", 21))
sketch2.addConstraint(Sketcher.Constraint("Vertical", 22))
sketch2.addConstraint(Sketcher.Constraint("Horizontal", 23))
sketch2.addConstraint(Sketcher.Constraint("Vertical", 24))
sketch2.addConstraint(Sketcher.Constraint("Horizontal", 25))
sketch2.addConstraint(Sketcher.Constraint("Vertical", 26))
sketch2.addConstraint(Sketcher.Constraint("Horizontal", 27))
sketch2.addConstraint(Sketcher.Constraint("Vertical", 28))
sketch2.addConstraint(Sketcher.Constraint("Horizontal", 29))
sketch2.addConstraint(Sketcher.Constraint("Vertical", 30))
sketch2.addConstraint(Sketcher.Constraint("Horizontal", 31))
sketch2.addConstraint(Sketcher.Constraint("Vertical", 32))
sketch2.addConstraint(Sketcher.Constraint("Horizontal", 33))
sketch2.addConstraint(Sketcher.Constraint("Vertical", 34))
sketch2.addConstraint(Sketcher.Constraint("Horizontal", 35))
sketch2.addConstraint(Sketcher.Constraint("Vertical", 36))
sketch2.addConstraint(Sketcher.Constraint("Horizontal", 37))
sketch2.addConstraint(Sketcher.Constraint("Vertical", 38))
sketch2.addConstraint(Sketcher.Constraint("Horizontal", 39))
sketch2.addConstraint(Sketcher.Constraint("Vertical", 40))
sketch2.addConstraint(Sketcher.Constraint("Horizontal", 41))
sketch2.addConstraint(Sketcher.Constraint("Vertical", 42))
sketch2.addConstraint(Sketcher.Constraint("Horizontal", 43))
sketch2.addConstraint(Sketcher.Constraint("Vertical", 44))
sketch2.addConstraint(Sketcher.Constraint("Horizontal", 45))
sketch2.addConstraint(Sketcher.Constraint("Vertical", 46))
sketch2.addConstraint(Sketcher.Constraint("Horizontal", 47))
sketch2.addConstraint(Sketcher.Constraint("Horizontal", 13, 2, 16, 2))
sketch2.addConstraint(Sketcher.Constraint("Horizontal", 15, 2, 18, 2))
sketch2.addConstraint(Sketcher.Constraint("Horizontal", 9, 2, 20, 2))
sketch2.addConstraint(Sketcher.Constraint("Horizontal", 11, 2, 22, 2))
sketch2.addConstraint(Sketcher.Constraint("Horizontal", 5, 2, 24, 2))
sketch2.addConstraint(Sketcher.Constraint("Horizontal", 7, 2, 26, 2))
sketch2.addConstraint(Sketcher.Constraint("Horizontal", 1, 2, 28, 2))
sketch2.addConstraint(Sketcher.Constraint("Horizontal", 3, 2, 30, 2))
sketch2.addConstraint(Sketcher.Constraint("Horizontal", 29, 2, 32, 2))
sketch2.addConstraint(Sketcher.Constraint("Horizontal", 31, 2, 34, 2))
sketch2.addConstraint(Sketcher.Constraint("Horizontal", 25, 2, 36, 2))
sketch2.addConstraint(Sketcher.Constraint("Horizontal", 27, 2, 38, 2))
sketch2.addConstraint(Sketcher.Constraint("Horizontal", 21, 2, 40, 2))
sketch2.addConstraint(Sketcher.Constraint("Horizontal", 23, 2, 42, 2))
sketch2.addConstraint(Sketcher.Constraint("Horizontal", 17, 2, 44, 2))
sketch2.addConstraint(Sketcher.Constraint("Horizontal", 19, 2, 46, 2))
sketch2.addConstraint(Sketcher.Constraint("Vertical", 3, 2, 4, 2))
sketch2.addConstraint(Sketcher.Constraint("Vertical", 2, 2, 5, 2))
sketch2.addConstraint(Sketcher.Constraint("Vertical", 7, 2, 8, 2))
sketch2.addConstraint(Sketcher.Constraint("Vertical", 6, 2, 9, 2))
sketch2.addConstraint(Sketcher.Constraint("Vertical", 11, 2, 12, 2))
sketch2.addConstraint(Sketcher.Constraint("Vertical", 10, 2, 13, 2))
sketch2.addConstraint(Sketcher.Constraint("Vertical", 19, 2, 20, 2))
sketch2.addConstraint(Sketcher.Constraint("Vertical", 18, 2, 21, 2))
sketch2.addConstraint(Sketcher.Constraint("Vertical", 23, 2, 24, 2))
sketch2.addConstraint(Sketcher.Constraint("Vertical", 22, 2, 25, 2))
sketch2.addConstraint(Sketcher.Constraint("Vertical", 27, 2, 28, 2))
sketch2.addConstraint(Sketcher.Constraint("Vertical", 26, 2, 29, 2))
sketch2.addConstraint(Sketcher.Constraint("Vertical", 35, 2, 36, 2))
sketch2.addConstraint(Sketcher.Constraint("Vertical", 34, 2, 37, 2))
sketch2.addConstraint(Sketcher.Constraint("Vertical", 39, 2, 40, 2))
sketch2.addConstraint(Sketcher.Constraint("Vertical", 38, 2, 41, 2))
sketch2.addConstraint(Sketcher.Constraint("Vertical", 43, 2, 44, 2))
sketch2.addConstraint(Sketcher.Constraint("Vertical", 42, 2, 45, 2))
sketch2.addConstraint(Sketcher.Constraint("Equal", 15, 17))
sketch2.addConstraint(Sketcher.Constraint("Equal", 31, 33))
sketch2.addConstraint(Sketcher.Constraint("Equal", 2, 4))
sketch2.addConstraint(Sketcher.Constraint("Equal", 6, 8))
sketch2.addConstraint(Sketcher.Constraint("Equal", 10, 12))
sketch2.addConstraint(Sketcher.Constraint("DistanceX", 1, 1, 1, 2, Q("2 in")))
sketch2.addConstraint(Sketcher.Constraint("DistanceY", 0, 2, 0, 1, Q("1 in")))
sketch2.addConstraint(Sketcher.Constraint("DistanceY", -1, 1, 12, 2, Q("5 in")))
sketch2.addConstraint(Sketcher.Constraint("DistanceX", -1, 1, 16, 2, Q("11 in")))
sketch2.addConstraint(Sketcher.Constraint("DistanceY", -1, 1, 4, 2, Q("14.5 in")))
sketch2.addConstraint(Sketcher.Constraint("DistanceY", 8, 2, 0, 2, Q("9.5 in")))
sketch2.addConstraint(Sketcher.Constraint("DistanceY", -1, 1, 0, 2, Q("19.25 in")))
sketch2.addConstraint(Sketcher.Constraint("DistanceX", -1, 1, 0, 2, Q("3.125 in")))
sketch2.addConstraint(Sketcher.Constraint("DistanceX", -1, 1, 32, 2, Q("18.875 in")))
sketch2.setExpression("Constraints[135]", "Params.sketch2_width")
sketch2.setExpression("Constraints[136]", "Params.sketch2_height")
pocket1 = body.newObject("PartDesign::Pocket", "Pocket")
pocket1.Profile = sketch2
pocket1.Type = "ThroughAll"

sketch3 = body.newObject("Sketcher::SketchObject", "Sketch002")
sketch3.AttachmentSupport = (doc.getObject("XY_Plane"), [""])
sketch3.MapMode = "FlatFace"
sketch3.AttachmentOffset = App.Placement(V(0, 0, 0.75 * 25.4), App.Rotation())
sketch3.addGeometry(Part.LineSegment(V(0, 13, 0), V(0, 0, 0)), False)
sketch3.addGeometry(Part.LineSegment(V(0, 0, 0), V(610, 0, 0)), False)
sketch3.addGeometry(Part.LineSegment(V(610, 0, 0), V(610, 13, 0)), False)
sketch3.addGeometry(Part.LineSegment(V(610, 13, 0), V(0, 13, 0)), False)
sketch3.addConstraint(Sketcher.Constraint("Coincident", 0, 2, 1, 1))
sketch3.addConstraint(Sketcher.Constraint("Coincident", 1, 2, 2, 1))
sketch3.addConstraint(Sketcher.Constraint("Coincident", 2, 2, 3, 1))
sketch3.addConstraint(Sketcher.Constraint("Coincident", 3, 2, 0, 1))
sketch3.addConstraint(Sketcher.Constraint("Vertical", 0))
sketch3.addConstraint(Sketcher.Constraint("Horizontal", 1))
sketch3.addConstraint(Sketcher.Constraint("Vertical", 2))
sketch3.addConstraint(Sketcher.Constraint("Horizontal", 3))
sketch3.addConstraint(Sketcher.Constraint("Coincident", 0, 2, -1, 1))
sketch3.addConstraint(Sketcher.Constraint("DistanceX", 1, 1, 1, 2, Q("24 in")))
sketch3.addConstraint(Sketcher.Constraint("DistanceY", 0, 2, 0, 1, Q("0.5 in")))
sketch3.setExpression("Constraints[9]", "Params.sketch3_width")
sketch3.setExpression("Constraints[10]", "Params.sketch3_height")
pocket2 = body.newObject("PartDesign::Pocket", "Pocket001")
pocket2.Profile = sketch3
pocket2.Type = "ThroughAll"

sketch4 = body.newObject("Sketcher::SketchObject", "Sketch003")
sketch4.AttachmentSupport = (doc.getObject("XY_Plane"), [""])
sketch4.MapMode = "FlatFace"
sketch4.AttachmentOffset = App.Placement(V(0, 0, 0.75 * 25.4), App.Rotation())
sketch4.addGeometry(Part.LineSegment(V(38, 758, 0), V(38, 533, 0)), False)
sketch4.addGeometry(Part.LineSegment(V(38, 533, 0), V(572, 533, 0)), False)
sketch4.addGeometry(Part.LineSegment(V(572, 533, 0), V(572, 758, 0)), False)
sketch4.addGeometry(Part.LineSegment(V(572, 758, 0), V(38, 758, 0)), False)
sketch4.addConstraint(Sketcher.Constraint("Coincident", 0, 2, 1, 1))
sketch4.addConstraint(Sketcher.Constraint("Coincident", 1, 2, 2, 1))
sketch4.addConstraint(Sketcher.Constraint("Coincident", 2, 2, 3, 1))
sketch4.addConstraint(Sketcher.Constraint("Coincident", 3, 2, 0, 1))
sketch4.addConstraint(Sketcher.Constraint("Vertical", 0))
sketch4.addConstraint(Sketcher.Constraint("Horizontal", 1))
sketch4.addConstraint(Sketcher.Constraint("Vertical", 2))
sketch4.addConstraint(Sketcher.Constraint("Horizontal", 3))
sketch4.addConstraint(Sketcher.Constraint("DistanceX", 1, 1, 1, 2, Q("21 in")))
sketch4.addConstraint(Sketcher.Constraint("DistanceY", 0, 2, 0, 1, Q("8.83 in")))
sketch4.addConstraint(Sketcher.Constraint("DistanceX", -1, 1, 0, 2, Q("1.5 in")))
sketch4.addConstraint(Sketcher.Constraint("DistanceY", -1, 1, 0, 2, Q("20.995 in")))
sketch4.setExpression("Constraints[8]", "Params.sketch4_width")
sketch4.setExpression("Constraints[9]", "Params.sketch4_height")
pocket3 = body.newObject("PartDesign::Pocket", "Pocket002")
pocket3.Profile = sketch4
pocket3.Type = "ThroughAll"
pocket3.Midplane = True

sketch5 = body.newObject("Sketcher::SketchObject", "Sketch004")
sketch5.AttachmentSupport = (doc.getObject("XY_Plane"), [""])
sketch5.MapMode = "FlatFace"
sketch5.AttachmentOffset = App.Placement(V(0, 0, 0.75 * 25.4), App.Rotation())
sketch5.addGeometry(Part.LineSegment(V(-207, 957, 0), V(-207, 533, 0)), False)
sketch5.addGeometry(Part.LineSegment(V(-207, 533, 0), V(1142, 533, 0)), False)
sketch5.addGeometry(Part.LineSegment(V(1142, 533, 0), V(1142, 957, 0)), False)
sketch5.addGeometry(Part.LineSegment(V(1142, 957, 0), V(-207, 957, 0)), False)
sketch5.addConstraint(Sketcher.Constraint("Coincident", 0, 2, 1, 1))
sketch5.addConstraint(Sketcher.Constraint("Coincident", 1, 2, 2, 1))
sketch5.addConstraint(Sketcher.Constraint("Coincident", 2, 2, 3, 1))
sketch5.addConstraint(Sketcher.Constraint("Coincident", 3, 2, 0, 1))
sketch5.addConstraint(Sketcher.Constraint("Vertical", 0))
sketch5.addConstraint(Sketcher.Constraint("Horizontal", 1))
sketch5.addConstraint(Sketcher.Constraint("Vertical", 2))
sketch5.addConstraint(Sketcher.Constraint("Horizontal", 3))
sketch5.addConstraint(Sketcher.Constraint("DistanceY", -1, 1, 0, 2, Q("20.995 in")))
sketch5.addConstraint(Sketcher.Constraint("DistanceY", 0, 2, 0, 1, Q("423.8433 mm")))
sketch5.addConstraint(Sketcher.Constraint("DistanceX", 1, 1, 1, 2, Q("1348.924846 mm")))
sketch5.addConstraint(Sketcher.Constraint("DistanceX", -1, 1, 1, 2, Q("1141.92975 mm")))
pocket4 = body.newObject("PartDesign::Pocket", "Pocket003")
pocket4.Profile = sketch5
pocket4.Type = "ThroughAll"
pocket4.Midplane = True
doc.recompute()

fillet = body.newObject("PartDesign::Fillet", "Fillet")
fillet.Base = (pocket4, edges_at(pocket4, [
    (530.225, 488.95, 9.525),
    (479.425, 488.95, 9.525),
    (479.425, 514.35, 9.525),
    (530.225, 514.35, 9.525),
    (330.2, 514.35, 9.525),
    (330.2, 488.95, 9.525),
    (279.4, 488.95, 9.525),
    (279.4, 514.35, 9.525),
    (330.2, 393.7, 9.525),
    (330.2, 368.3, 9.525),
    (279.4, 368.3, 9.525),
    (279.4, 393.7, 9.525),
    (330.2, 273.05, 9.525),
    (330.2, 247.65, 9.525),
    (279.4, 247.65, 9.525),
    (279.4, 273.05, 9.525),
    (330.2, 152.4, 9.525),
    (330.2, 127, 9.525),
    (279.4, 127, 9.525),
    (279.4, 152.4, 9.525),
    (130.175, 127, 9.525),
    (79.375, 127, 9.525),
    (79.375, 152.4, 9.525),
    (130.175, 152.4, 9.525),
    (130.175, 247.65, 9.525),
    (79.375, 247.65, 9.525),
    (79.375, 273.05, 9.525),
    (130.175, 273.05, 9.525),
    (130.175, 368.3, 9.525),
    (79.375, 368.3, 9.525),
    (79.375, 393.7, 9.525),
    (130.175, 393.7, 9.525),
    (530.225, 368.3, 9.525),
    (479.425, 368.3, 9.525),
    (479.425, 393.7, 9.525),
    (530.225, 393.7, 9.525),
    (530.225, 247.65, 9.525),
    (479.425, 247.65, 9.525),
    (479.425, 273.05, 9.525),
    (530.225, 273.05, 9.525),
    (530.225, 127, 9.525),
    (479.425, 127, 9.525),
    (479.425, 152.4, 9.525),
    (530.225, 152.4, 9.525),
    (130.175, 488.95, 9.525),
    (79.375, 488.95, 9.525),
    (79.375, 514.35, 9.525),
    (130.175, 514.35, 9.525),
]))
fillet.setExpression("Radius", "Params.fillet_radius")

doc.recompute()
